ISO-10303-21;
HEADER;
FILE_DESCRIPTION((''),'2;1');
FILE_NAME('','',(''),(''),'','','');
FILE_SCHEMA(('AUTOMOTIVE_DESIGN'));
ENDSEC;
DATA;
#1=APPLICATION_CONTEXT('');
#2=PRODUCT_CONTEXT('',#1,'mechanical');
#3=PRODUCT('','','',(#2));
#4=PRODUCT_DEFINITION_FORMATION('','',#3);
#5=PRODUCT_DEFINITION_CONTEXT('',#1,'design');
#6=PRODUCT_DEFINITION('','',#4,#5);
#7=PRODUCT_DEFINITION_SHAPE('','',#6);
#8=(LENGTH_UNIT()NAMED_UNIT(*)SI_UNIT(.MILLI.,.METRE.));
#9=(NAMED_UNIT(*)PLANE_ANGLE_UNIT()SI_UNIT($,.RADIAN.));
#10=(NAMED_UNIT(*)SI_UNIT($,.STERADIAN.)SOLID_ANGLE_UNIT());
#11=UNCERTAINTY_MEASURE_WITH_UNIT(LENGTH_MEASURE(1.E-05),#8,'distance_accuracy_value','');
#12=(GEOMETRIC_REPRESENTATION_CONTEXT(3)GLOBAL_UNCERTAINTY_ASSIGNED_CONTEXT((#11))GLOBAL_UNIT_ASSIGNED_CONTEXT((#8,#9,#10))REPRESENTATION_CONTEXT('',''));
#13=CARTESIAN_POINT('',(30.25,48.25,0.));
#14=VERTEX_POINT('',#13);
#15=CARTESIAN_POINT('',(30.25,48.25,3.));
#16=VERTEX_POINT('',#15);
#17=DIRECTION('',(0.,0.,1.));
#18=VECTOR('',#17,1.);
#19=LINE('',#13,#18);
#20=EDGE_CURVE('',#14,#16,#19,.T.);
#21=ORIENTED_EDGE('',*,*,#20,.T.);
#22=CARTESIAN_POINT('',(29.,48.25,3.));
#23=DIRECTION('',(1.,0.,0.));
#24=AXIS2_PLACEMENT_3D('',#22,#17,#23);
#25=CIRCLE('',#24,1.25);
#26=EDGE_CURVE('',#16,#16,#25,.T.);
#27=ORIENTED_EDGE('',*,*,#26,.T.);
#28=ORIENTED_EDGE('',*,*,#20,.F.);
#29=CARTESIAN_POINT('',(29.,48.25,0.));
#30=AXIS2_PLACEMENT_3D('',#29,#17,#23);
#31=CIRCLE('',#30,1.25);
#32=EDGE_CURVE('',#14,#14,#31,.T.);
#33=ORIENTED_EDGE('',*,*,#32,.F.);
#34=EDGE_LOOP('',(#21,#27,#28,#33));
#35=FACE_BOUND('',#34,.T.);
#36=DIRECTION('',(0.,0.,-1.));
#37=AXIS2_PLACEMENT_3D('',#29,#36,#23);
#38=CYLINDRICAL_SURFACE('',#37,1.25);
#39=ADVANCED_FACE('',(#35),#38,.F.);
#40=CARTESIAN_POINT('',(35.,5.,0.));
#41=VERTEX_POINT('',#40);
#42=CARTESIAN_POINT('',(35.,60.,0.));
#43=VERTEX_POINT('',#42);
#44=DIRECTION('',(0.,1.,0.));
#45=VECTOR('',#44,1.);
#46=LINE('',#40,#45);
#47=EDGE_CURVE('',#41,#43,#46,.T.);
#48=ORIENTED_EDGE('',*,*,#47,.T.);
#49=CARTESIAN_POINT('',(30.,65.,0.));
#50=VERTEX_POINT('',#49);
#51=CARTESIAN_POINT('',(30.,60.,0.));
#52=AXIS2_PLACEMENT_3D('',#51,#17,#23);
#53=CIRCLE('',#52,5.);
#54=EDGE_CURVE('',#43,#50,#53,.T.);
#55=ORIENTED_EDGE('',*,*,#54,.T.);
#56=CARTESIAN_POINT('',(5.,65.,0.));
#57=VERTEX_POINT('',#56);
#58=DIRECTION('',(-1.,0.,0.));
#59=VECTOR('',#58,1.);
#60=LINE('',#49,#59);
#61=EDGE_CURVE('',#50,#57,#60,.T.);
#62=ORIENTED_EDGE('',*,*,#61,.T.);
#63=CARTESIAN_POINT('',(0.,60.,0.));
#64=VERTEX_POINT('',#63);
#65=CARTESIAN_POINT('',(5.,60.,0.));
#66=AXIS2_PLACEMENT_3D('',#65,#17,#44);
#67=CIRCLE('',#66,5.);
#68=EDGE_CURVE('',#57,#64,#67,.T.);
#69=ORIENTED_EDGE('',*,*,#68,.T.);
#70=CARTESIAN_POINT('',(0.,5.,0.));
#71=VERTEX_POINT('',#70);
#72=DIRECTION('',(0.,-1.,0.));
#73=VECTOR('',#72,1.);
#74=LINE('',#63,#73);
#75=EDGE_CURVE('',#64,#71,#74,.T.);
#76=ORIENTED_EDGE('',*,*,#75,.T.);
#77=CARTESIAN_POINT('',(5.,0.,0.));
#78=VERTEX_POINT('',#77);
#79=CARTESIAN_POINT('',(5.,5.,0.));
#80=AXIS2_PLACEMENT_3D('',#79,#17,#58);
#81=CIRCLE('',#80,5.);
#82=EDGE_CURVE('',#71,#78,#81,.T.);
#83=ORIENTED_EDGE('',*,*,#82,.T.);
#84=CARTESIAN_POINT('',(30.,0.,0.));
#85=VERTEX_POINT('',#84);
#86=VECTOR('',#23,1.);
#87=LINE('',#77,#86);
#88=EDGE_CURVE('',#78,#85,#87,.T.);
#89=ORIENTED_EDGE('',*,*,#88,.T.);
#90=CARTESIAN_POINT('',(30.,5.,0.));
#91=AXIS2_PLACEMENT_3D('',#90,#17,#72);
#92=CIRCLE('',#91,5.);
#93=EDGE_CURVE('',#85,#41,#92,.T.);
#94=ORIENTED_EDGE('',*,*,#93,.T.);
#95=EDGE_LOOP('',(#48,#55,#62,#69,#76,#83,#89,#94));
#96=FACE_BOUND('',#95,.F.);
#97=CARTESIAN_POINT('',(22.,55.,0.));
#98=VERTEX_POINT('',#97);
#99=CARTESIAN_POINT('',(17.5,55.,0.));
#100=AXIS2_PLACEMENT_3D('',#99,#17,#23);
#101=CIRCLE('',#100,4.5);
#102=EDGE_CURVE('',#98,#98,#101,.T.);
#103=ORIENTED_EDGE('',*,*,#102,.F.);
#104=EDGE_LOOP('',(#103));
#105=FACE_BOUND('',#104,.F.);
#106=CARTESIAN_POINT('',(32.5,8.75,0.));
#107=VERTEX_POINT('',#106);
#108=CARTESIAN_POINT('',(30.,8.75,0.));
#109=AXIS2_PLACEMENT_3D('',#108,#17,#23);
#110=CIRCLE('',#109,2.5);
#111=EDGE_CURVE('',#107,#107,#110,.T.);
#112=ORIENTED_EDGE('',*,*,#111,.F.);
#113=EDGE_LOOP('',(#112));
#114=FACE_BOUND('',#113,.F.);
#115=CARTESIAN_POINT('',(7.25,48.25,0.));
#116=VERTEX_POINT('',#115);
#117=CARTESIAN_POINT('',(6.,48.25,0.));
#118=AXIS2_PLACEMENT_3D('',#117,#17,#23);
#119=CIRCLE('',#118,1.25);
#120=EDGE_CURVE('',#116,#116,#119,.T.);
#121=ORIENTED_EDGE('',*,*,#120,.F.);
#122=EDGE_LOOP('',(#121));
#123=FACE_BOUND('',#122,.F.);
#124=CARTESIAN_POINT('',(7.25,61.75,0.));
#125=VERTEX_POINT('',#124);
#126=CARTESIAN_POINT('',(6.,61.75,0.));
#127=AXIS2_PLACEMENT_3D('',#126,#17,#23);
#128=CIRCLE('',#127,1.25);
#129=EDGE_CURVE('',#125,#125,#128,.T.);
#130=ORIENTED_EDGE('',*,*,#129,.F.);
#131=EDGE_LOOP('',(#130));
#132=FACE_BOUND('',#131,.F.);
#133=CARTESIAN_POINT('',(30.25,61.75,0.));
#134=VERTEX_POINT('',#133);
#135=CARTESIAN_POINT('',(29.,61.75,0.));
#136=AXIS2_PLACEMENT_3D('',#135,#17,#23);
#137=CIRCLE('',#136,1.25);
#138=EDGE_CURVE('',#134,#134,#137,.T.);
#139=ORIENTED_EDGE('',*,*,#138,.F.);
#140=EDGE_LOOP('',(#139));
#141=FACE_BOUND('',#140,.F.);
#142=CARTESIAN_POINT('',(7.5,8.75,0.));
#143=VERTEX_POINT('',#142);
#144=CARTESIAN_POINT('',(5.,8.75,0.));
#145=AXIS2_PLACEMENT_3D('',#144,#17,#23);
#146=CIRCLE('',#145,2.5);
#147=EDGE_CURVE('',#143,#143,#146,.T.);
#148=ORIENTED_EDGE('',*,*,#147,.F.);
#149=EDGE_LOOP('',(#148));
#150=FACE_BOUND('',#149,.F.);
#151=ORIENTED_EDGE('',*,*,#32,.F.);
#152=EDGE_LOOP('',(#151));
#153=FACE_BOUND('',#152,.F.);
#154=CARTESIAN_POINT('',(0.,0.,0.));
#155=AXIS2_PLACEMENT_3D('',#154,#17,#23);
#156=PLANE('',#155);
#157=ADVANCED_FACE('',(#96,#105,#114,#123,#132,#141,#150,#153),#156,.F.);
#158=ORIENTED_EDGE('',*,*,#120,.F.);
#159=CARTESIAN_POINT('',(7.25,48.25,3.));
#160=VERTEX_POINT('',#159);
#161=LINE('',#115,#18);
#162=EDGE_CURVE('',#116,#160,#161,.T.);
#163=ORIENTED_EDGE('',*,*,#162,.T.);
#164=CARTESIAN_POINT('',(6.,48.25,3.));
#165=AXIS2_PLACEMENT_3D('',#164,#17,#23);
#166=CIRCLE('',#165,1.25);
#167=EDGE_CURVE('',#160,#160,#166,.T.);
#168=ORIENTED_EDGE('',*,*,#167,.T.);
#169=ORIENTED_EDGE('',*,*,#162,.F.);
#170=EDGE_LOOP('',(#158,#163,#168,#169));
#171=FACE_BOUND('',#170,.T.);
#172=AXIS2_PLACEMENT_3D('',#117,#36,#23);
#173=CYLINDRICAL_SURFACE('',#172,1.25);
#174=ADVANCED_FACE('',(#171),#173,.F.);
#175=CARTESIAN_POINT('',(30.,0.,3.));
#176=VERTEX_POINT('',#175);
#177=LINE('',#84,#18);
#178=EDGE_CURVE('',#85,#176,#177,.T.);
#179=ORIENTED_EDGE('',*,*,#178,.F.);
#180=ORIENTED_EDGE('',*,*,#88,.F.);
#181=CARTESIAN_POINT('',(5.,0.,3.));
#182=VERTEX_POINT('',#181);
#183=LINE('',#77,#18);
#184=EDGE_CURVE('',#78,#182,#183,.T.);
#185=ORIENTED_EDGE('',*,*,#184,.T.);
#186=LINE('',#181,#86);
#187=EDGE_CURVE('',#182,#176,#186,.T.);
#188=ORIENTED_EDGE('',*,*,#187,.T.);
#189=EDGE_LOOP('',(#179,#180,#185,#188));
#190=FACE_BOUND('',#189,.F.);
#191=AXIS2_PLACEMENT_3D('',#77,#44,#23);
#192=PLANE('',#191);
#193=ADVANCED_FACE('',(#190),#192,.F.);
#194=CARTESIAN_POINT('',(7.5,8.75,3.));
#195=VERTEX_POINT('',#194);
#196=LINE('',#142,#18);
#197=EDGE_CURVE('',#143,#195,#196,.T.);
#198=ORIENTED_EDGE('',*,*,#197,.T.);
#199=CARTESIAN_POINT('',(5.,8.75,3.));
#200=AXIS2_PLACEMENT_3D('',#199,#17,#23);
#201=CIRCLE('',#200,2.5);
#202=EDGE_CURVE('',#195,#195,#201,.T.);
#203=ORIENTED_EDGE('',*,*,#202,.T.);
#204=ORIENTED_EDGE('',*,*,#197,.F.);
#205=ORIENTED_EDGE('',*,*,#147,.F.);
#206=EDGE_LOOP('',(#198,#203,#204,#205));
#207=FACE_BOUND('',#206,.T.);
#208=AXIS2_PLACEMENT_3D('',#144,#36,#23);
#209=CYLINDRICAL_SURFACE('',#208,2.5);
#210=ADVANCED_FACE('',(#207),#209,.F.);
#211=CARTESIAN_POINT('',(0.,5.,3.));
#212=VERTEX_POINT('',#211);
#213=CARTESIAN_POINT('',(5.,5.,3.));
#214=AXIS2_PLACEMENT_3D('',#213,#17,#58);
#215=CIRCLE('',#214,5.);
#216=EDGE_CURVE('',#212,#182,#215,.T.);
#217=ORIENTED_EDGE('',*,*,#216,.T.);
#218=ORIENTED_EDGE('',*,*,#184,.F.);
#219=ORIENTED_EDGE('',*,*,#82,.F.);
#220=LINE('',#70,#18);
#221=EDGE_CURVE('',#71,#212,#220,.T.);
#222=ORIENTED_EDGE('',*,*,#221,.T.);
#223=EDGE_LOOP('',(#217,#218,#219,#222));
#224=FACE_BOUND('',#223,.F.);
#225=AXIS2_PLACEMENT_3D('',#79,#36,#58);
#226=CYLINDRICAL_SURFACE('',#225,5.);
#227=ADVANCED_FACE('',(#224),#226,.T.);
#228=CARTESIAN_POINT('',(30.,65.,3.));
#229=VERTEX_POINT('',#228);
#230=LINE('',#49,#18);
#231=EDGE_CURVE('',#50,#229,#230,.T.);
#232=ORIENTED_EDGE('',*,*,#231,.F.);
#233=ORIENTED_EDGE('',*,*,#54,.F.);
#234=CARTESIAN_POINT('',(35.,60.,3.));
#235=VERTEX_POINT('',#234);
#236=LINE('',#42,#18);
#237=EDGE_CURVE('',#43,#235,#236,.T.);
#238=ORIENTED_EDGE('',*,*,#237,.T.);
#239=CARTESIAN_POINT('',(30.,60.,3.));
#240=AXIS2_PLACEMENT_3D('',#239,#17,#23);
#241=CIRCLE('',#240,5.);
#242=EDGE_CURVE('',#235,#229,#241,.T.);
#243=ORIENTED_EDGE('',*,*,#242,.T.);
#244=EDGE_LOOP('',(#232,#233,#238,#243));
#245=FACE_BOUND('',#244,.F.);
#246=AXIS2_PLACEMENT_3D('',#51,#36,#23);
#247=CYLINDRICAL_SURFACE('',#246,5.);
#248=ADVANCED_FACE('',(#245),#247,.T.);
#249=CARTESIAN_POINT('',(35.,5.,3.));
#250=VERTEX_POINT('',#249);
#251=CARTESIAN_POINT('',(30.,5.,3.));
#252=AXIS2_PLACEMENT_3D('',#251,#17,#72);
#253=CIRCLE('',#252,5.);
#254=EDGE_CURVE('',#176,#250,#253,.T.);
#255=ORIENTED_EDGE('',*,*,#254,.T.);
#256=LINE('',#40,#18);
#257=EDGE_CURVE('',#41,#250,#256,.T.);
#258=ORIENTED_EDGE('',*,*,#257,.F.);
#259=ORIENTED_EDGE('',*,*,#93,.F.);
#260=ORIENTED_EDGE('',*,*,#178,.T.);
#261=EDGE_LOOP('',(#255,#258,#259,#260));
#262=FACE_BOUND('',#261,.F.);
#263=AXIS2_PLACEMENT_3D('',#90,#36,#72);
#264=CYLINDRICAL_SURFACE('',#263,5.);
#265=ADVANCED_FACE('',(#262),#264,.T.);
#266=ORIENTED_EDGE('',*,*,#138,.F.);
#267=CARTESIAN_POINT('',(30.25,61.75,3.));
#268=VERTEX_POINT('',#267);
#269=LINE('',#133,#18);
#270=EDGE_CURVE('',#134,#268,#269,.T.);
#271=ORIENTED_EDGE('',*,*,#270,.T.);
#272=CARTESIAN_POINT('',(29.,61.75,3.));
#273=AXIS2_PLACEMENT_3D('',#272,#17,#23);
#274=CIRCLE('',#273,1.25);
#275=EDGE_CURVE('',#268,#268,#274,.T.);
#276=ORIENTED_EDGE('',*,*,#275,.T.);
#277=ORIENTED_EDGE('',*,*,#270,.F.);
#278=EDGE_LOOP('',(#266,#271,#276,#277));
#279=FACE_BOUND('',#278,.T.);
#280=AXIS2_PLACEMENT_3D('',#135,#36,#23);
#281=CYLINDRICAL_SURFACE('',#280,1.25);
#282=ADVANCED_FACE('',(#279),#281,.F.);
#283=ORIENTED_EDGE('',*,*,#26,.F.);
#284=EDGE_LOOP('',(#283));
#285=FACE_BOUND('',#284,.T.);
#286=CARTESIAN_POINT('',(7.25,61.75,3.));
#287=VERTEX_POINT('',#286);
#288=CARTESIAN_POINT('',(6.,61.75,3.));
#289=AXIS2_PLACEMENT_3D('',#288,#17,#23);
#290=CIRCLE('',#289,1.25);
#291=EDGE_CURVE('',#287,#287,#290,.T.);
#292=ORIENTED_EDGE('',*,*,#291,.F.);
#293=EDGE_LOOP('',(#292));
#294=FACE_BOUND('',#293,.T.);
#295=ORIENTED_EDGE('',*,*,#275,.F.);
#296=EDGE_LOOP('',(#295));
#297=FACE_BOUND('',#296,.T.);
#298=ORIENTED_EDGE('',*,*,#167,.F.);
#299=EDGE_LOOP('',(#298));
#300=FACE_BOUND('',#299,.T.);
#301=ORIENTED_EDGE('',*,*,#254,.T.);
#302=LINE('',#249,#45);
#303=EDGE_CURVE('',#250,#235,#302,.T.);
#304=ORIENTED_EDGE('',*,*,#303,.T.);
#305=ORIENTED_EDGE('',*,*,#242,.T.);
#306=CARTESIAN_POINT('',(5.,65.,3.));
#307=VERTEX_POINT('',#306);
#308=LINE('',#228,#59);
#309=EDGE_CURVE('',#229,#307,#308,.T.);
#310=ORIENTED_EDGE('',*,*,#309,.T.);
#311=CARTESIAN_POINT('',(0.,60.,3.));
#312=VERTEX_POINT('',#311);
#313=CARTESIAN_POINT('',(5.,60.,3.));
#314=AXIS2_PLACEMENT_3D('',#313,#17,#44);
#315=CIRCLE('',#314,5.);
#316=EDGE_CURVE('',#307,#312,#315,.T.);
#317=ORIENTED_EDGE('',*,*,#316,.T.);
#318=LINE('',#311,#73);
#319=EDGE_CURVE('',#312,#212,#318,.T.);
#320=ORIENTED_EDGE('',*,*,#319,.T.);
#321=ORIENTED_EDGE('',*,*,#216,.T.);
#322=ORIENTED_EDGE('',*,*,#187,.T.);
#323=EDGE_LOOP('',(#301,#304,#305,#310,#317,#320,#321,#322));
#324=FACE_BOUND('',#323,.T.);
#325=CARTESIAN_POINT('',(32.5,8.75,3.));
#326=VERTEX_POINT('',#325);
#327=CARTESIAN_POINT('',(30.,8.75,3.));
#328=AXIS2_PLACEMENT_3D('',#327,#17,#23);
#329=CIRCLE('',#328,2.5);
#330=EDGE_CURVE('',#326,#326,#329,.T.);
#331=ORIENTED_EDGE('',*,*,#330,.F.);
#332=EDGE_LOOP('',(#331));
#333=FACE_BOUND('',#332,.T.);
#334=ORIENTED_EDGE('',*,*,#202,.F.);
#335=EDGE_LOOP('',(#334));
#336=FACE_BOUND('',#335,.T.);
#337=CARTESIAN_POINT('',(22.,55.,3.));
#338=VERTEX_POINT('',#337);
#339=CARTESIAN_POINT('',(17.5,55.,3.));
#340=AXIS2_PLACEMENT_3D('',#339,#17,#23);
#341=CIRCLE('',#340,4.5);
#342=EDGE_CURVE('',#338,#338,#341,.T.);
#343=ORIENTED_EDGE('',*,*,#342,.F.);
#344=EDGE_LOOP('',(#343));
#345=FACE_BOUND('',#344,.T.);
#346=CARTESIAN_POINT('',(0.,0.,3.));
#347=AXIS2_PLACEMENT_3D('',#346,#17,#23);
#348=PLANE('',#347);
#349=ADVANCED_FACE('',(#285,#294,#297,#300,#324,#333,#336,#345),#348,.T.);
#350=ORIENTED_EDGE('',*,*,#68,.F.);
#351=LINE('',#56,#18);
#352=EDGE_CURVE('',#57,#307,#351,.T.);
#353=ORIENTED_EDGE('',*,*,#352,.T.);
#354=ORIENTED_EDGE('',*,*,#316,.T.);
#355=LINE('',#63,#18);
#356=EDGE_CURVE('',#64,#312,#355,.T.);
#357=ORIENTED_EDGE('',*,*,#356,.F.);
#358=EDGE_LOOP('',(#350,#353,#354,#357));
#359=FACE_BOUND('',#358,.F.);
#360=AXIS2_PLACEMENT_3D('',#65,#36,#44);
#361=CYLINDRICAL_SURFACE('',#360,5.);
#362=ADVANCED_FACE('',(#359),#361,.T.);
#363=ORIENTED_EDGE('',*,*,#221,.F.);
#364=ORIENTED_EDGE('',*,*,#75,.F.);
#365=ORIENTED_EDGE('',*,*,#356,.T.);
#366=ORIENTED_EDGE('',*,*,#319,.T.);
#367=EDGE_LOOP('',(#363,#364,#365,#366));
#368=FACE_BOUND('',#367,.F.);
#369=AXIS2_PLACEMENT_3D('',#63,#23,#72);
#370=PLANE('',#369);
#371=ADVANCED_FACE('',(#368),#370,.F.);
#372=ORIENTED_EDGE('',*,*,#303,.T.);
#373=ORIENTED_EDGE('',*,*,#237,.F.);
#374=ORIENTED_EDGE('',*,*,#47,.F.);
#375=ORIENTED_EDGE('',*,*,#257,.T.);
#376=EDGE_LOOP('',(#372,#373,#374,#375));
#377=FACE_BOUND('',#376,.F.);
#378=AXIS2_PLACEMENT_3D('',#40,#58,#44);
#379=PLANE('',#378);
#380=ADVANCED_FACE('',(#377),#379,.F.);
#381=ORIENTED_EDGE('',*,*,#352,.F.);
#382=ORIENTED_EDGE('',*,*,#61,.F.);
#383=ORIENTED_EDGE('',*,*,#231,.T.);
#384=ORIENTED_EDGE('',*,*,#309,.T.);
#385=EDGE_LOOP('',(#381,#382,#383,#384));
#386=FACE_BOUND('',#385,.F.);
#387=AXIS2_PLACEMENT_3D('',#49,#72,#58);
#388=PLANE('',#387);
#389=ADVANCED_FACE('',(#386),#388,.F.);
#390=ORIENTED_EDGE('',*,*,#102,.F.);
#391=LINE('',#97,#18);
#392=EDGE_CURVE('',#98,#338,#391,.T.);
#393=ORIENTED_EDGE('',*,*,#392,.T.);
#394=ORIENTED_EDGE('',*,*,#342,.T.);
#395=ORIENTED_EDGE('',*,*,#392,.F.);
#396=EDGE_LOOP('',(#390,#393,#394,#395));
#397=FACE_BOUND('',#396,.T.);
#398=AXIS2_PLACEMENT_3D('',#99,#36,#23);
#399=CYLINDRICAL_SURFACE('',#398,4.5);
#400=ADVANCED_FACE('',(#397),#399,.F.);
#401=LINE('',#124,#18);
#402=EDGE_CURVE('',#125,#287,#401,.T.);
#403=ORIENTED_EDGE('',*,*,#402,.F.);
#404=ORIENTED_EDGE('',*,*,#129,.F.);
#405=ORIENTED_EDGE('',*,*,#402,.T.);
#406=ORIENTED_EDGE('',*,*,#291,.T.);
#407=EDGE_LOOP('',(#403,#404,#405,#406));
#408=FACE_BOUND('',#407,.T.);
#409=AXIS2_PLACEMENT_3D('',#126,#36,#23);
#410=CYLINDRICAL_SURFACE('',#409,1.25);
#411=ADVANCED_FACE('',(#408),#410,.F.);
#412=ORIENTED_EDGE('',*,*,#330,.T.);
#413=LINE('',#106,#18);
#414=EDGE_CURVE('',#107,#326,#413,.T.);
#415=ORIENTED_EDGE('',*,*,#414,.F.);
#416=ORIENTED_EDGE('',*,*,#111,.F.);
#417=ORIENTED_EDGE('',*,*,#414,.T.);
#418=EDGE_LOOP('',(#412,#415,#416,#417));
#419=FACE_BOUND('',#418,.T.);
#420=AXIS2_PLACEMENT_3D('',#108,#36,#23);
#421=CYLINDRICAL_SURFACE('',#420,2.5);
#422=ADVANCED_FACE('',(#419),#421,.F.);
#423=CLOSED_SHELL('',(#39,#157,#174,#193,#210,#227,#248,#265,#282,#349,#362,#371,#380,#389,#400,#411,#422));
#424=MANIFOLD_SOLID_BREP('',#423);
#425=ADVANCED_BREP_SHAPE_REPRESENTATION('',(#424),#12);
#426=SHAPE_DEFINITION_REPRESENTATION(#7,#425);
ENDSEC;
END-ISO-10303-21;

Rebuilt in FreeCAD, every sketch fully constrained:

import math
import FreeCAD as App
import Part
import Sketcher
Q = App.Units.Quantity

doc = App.newDocument("Part")
body = doc.addObject("PartDesign::Body", "Body")

# Sketch on XY plane
sketch1 = body.newObject("Sketcher::SketchObject", "Sketch")
sketch1.AttachmentSupport = (doc.getObject("XY_Plane"), [""])
sketch1.MapMode = "FlatFace"
sketch1.addGeometry(Part.ArcOfCircle(Part.Circle(App.Vector(5, 5, 0), App.Vector(0, 0, 1), 5), math.radians(180), math.radians(270)), False)
sketch1.addGeometry(Part.LineSegment(App.Vector(5, 0, 0), App.Vector(30, 0, 0)), False)
sketch1.addGeometry(Part.ArcOfCircle(Part.Circle(App.Vector(30, 5, 0), App.Vector(0, 0, 1), 5), math.radians(-90), math.radians(0)), False)
sketch1.addGeometry(Part.LineSegment(App.Vector(35, 5, 0), App.Vector(35, 60, 0)), False)
sketch1.addGeometry(Part.ArcOfCircle(Part.Circle(App.Vector(30, 60, 0), App.Vector(0, 0, 1), 5), math.radians(0), math.radians(90)), False)
sketch1.addGeometry(Part.LineSegment(App.Vector(30, 65, 0), App.Vector(5, 65, 0)), False)
sketch1.addGeometry(Part.ArcOfCircle(Part.Circle(App.Vector(5, 60, 0), App.Vector(0, 0, 1), 5), math.radians(90), math.radians(180)), False)
sketch1.addGeometry(Part.LineSegment(App.Vector(0, 60, 0), App.Vector(0, 5, 0)), False)
sketch1.addGeometry(Part.Circle(App.Vector(5, 8.8, 0), App.Vector(0, 0, 1), 2.5), False)
sketch1.addGeometry(Part.Circle(App.Vector(30, 8.8, 0), App.Vector(0, 0, 1), 2.5), False)
sketch1.addGeometry(Part.Circle(App.Vector(6, 48.2, 0), App.Vector(0, 0, 1), 1.2), False)
sketch1.addGeometry(Part.Circle(App.Vector(6, 61.8, 0), App.Vector(0, 0, 1), 1.2), False)
sketch1.addGeometry(Part.Circle(App.Vector(29, 48.2, 0), App.Vector(0, 0, 1), 1.2), False)
sketch1.addGeometry(Part.Circle(App.Vector(17.5, 55, 0), App.Vector(0, 0, 1), 4.5), False)
sketch1.addGeometry(Part.Circle(App.Vector(29, 61.8, 0), App.Vector(0, 0, 1), 1.2), False)
sketch1.addConstraint(Sketcher.Constraint("Tangent", 0, 2, 1, 1))
sketch1.addConstraint(Sketcher.Constraint("Tangent", 1, 2, 2, 1))
sketch1.addConstraint(Sketcher.Constraint("Tangent", 2, 2, 3, 1))
sketch1.addConstraint(Sketcher.Constraint("Tangent", 3, 2, 4, 1))
sketch1.addConstraint(Sketcher.Constraint("Tangent", 4, 2, 5, 1))
sketch1.addConstraint(Sketcher.Constraint("Tangent", 5, 2, 6, 1))
sketch1.addConstraint(Sketcher.Constraint("Tangent", 6, 2, 7, 1))
sketch1.addConstraint(Sketcher.Constraint("Tangent", 7, 2, 0, 1))
sketch1.addConstraint(Sketcher.Constraint("Horizontal", 1))
sketch1.addConstraint(Sketcher.Constraint("Vertical", 3))
sketch1.addConstraint(Sketcher.Constraint("Horizontal", 5))
sketch1.addConstraint(Sketcher.Constraint("Vertical", 7))
sketch1.addConstraint(Sketcher.Constraint("Equal", 0, 2))
sketch1.addConstraint(Sketcher.Constraint("Equal", 2, 4))
sketch1.addConstraint(Sketcher.Constraint("Equal", 4, 6))
sketch1.addConstraint(Sketcher.Constraint("Equal", 8, 9))
sketch1.addConstraint(Sketcher.Constraint("Equal", 10, 11))
sketch1.addConstraint(Sketcher.Constraint("Equal", 11, 12))
sketch1.addConstraint(Sketcher.Constraint("Equal", 12, 14))
sketch1.addConstraint(Sketcher.Constraint("PointOnObject", 0, 2, -1))
sketch1.addConstraint(Sketcher.Constraint("PointOnObject", 6, 2, -2))
sketch1.addConstraint(Sketcher.Constraint("Horizontal", 8, 3, 9, 3))
sketch1.addConstraint(Sketcher.Constraint("Horizontal", 10, 3, 12, 3))
sketch1.addConstraint(Sketcher.Constraint("Horizontal", 11, 3, 14, 3))
sketch1.addConstraint(Sketcher.Constraint("Vertical", 6, 3, 8, 3))
sketch1.addConstraint(Sketcher.Constraint("Vertical", 4, 3, 9, 3))
sketch1.addConstraint(Sketcher.Constraint("Vertical", 10, 3, 11, 3))
sketch1.addConstraint(Sketcher.Constraint("Vertical", 12, 3, 14, 3))
sketch1.addConstraint(Sketcher.Constraint("Diameter", 8, Q("5 mm")))
sketch1.addConstraint(Sketcher.Constraint("Diameter", 13, Q("9 mm")))
sketch1.addConstraint(Sketcher.Constraint("Radius", 0, Q("5 mm")))
sketch1.addConstraint(Sketcher.Constraint("Diameter", 10, Q("2.5 mm")))
sketch1.addConstraint(Sketcher.Constraint("DistanceX", 1, 1, 1, 2, Q("25 mm")))
sketch1.addConstraint(Sketcher.Constraint("DistanceY", 3, 1, 3, 2, Q("55 mm")))
sketch1.addConstraint(Sketcher.Constraint("DistanceX", -1, 1, 10, 3, Q("6 mm")))
sketch1.addConstraint(Sketcher.Constraint("DistanceX", -1, 1, 12, 3, Q("29 mm")))
sketch1.addConstraint(Sketcher.Constraint("DistanceY", -1, 1, 13, 3, Q("55 mm")))
sketch1.addConstraint(Sketcher.Constraint("DistanceY", 8, 3, 11, 3, Q("53 mm")))
sketch1.addConstraint(Sketcher.Constraint("DistanceX", -1, 1, 13, 3, Q("17.5 mm")))
sketch1.addConstraint(Sketcher.Constraint("DistanceY", 8, 3, 10, 3, Q("39.5 mm")))
sketch1.addConstraint(Sketcher.Constraint("DistanceY", -1, 1, 8, 3, Q("8.75 mm")))
pad1 = body.newObject("PartDesign::Pad", "Pad")
pad1.Profile = sketch1
pad1.Length = 3

doc.recompute()
